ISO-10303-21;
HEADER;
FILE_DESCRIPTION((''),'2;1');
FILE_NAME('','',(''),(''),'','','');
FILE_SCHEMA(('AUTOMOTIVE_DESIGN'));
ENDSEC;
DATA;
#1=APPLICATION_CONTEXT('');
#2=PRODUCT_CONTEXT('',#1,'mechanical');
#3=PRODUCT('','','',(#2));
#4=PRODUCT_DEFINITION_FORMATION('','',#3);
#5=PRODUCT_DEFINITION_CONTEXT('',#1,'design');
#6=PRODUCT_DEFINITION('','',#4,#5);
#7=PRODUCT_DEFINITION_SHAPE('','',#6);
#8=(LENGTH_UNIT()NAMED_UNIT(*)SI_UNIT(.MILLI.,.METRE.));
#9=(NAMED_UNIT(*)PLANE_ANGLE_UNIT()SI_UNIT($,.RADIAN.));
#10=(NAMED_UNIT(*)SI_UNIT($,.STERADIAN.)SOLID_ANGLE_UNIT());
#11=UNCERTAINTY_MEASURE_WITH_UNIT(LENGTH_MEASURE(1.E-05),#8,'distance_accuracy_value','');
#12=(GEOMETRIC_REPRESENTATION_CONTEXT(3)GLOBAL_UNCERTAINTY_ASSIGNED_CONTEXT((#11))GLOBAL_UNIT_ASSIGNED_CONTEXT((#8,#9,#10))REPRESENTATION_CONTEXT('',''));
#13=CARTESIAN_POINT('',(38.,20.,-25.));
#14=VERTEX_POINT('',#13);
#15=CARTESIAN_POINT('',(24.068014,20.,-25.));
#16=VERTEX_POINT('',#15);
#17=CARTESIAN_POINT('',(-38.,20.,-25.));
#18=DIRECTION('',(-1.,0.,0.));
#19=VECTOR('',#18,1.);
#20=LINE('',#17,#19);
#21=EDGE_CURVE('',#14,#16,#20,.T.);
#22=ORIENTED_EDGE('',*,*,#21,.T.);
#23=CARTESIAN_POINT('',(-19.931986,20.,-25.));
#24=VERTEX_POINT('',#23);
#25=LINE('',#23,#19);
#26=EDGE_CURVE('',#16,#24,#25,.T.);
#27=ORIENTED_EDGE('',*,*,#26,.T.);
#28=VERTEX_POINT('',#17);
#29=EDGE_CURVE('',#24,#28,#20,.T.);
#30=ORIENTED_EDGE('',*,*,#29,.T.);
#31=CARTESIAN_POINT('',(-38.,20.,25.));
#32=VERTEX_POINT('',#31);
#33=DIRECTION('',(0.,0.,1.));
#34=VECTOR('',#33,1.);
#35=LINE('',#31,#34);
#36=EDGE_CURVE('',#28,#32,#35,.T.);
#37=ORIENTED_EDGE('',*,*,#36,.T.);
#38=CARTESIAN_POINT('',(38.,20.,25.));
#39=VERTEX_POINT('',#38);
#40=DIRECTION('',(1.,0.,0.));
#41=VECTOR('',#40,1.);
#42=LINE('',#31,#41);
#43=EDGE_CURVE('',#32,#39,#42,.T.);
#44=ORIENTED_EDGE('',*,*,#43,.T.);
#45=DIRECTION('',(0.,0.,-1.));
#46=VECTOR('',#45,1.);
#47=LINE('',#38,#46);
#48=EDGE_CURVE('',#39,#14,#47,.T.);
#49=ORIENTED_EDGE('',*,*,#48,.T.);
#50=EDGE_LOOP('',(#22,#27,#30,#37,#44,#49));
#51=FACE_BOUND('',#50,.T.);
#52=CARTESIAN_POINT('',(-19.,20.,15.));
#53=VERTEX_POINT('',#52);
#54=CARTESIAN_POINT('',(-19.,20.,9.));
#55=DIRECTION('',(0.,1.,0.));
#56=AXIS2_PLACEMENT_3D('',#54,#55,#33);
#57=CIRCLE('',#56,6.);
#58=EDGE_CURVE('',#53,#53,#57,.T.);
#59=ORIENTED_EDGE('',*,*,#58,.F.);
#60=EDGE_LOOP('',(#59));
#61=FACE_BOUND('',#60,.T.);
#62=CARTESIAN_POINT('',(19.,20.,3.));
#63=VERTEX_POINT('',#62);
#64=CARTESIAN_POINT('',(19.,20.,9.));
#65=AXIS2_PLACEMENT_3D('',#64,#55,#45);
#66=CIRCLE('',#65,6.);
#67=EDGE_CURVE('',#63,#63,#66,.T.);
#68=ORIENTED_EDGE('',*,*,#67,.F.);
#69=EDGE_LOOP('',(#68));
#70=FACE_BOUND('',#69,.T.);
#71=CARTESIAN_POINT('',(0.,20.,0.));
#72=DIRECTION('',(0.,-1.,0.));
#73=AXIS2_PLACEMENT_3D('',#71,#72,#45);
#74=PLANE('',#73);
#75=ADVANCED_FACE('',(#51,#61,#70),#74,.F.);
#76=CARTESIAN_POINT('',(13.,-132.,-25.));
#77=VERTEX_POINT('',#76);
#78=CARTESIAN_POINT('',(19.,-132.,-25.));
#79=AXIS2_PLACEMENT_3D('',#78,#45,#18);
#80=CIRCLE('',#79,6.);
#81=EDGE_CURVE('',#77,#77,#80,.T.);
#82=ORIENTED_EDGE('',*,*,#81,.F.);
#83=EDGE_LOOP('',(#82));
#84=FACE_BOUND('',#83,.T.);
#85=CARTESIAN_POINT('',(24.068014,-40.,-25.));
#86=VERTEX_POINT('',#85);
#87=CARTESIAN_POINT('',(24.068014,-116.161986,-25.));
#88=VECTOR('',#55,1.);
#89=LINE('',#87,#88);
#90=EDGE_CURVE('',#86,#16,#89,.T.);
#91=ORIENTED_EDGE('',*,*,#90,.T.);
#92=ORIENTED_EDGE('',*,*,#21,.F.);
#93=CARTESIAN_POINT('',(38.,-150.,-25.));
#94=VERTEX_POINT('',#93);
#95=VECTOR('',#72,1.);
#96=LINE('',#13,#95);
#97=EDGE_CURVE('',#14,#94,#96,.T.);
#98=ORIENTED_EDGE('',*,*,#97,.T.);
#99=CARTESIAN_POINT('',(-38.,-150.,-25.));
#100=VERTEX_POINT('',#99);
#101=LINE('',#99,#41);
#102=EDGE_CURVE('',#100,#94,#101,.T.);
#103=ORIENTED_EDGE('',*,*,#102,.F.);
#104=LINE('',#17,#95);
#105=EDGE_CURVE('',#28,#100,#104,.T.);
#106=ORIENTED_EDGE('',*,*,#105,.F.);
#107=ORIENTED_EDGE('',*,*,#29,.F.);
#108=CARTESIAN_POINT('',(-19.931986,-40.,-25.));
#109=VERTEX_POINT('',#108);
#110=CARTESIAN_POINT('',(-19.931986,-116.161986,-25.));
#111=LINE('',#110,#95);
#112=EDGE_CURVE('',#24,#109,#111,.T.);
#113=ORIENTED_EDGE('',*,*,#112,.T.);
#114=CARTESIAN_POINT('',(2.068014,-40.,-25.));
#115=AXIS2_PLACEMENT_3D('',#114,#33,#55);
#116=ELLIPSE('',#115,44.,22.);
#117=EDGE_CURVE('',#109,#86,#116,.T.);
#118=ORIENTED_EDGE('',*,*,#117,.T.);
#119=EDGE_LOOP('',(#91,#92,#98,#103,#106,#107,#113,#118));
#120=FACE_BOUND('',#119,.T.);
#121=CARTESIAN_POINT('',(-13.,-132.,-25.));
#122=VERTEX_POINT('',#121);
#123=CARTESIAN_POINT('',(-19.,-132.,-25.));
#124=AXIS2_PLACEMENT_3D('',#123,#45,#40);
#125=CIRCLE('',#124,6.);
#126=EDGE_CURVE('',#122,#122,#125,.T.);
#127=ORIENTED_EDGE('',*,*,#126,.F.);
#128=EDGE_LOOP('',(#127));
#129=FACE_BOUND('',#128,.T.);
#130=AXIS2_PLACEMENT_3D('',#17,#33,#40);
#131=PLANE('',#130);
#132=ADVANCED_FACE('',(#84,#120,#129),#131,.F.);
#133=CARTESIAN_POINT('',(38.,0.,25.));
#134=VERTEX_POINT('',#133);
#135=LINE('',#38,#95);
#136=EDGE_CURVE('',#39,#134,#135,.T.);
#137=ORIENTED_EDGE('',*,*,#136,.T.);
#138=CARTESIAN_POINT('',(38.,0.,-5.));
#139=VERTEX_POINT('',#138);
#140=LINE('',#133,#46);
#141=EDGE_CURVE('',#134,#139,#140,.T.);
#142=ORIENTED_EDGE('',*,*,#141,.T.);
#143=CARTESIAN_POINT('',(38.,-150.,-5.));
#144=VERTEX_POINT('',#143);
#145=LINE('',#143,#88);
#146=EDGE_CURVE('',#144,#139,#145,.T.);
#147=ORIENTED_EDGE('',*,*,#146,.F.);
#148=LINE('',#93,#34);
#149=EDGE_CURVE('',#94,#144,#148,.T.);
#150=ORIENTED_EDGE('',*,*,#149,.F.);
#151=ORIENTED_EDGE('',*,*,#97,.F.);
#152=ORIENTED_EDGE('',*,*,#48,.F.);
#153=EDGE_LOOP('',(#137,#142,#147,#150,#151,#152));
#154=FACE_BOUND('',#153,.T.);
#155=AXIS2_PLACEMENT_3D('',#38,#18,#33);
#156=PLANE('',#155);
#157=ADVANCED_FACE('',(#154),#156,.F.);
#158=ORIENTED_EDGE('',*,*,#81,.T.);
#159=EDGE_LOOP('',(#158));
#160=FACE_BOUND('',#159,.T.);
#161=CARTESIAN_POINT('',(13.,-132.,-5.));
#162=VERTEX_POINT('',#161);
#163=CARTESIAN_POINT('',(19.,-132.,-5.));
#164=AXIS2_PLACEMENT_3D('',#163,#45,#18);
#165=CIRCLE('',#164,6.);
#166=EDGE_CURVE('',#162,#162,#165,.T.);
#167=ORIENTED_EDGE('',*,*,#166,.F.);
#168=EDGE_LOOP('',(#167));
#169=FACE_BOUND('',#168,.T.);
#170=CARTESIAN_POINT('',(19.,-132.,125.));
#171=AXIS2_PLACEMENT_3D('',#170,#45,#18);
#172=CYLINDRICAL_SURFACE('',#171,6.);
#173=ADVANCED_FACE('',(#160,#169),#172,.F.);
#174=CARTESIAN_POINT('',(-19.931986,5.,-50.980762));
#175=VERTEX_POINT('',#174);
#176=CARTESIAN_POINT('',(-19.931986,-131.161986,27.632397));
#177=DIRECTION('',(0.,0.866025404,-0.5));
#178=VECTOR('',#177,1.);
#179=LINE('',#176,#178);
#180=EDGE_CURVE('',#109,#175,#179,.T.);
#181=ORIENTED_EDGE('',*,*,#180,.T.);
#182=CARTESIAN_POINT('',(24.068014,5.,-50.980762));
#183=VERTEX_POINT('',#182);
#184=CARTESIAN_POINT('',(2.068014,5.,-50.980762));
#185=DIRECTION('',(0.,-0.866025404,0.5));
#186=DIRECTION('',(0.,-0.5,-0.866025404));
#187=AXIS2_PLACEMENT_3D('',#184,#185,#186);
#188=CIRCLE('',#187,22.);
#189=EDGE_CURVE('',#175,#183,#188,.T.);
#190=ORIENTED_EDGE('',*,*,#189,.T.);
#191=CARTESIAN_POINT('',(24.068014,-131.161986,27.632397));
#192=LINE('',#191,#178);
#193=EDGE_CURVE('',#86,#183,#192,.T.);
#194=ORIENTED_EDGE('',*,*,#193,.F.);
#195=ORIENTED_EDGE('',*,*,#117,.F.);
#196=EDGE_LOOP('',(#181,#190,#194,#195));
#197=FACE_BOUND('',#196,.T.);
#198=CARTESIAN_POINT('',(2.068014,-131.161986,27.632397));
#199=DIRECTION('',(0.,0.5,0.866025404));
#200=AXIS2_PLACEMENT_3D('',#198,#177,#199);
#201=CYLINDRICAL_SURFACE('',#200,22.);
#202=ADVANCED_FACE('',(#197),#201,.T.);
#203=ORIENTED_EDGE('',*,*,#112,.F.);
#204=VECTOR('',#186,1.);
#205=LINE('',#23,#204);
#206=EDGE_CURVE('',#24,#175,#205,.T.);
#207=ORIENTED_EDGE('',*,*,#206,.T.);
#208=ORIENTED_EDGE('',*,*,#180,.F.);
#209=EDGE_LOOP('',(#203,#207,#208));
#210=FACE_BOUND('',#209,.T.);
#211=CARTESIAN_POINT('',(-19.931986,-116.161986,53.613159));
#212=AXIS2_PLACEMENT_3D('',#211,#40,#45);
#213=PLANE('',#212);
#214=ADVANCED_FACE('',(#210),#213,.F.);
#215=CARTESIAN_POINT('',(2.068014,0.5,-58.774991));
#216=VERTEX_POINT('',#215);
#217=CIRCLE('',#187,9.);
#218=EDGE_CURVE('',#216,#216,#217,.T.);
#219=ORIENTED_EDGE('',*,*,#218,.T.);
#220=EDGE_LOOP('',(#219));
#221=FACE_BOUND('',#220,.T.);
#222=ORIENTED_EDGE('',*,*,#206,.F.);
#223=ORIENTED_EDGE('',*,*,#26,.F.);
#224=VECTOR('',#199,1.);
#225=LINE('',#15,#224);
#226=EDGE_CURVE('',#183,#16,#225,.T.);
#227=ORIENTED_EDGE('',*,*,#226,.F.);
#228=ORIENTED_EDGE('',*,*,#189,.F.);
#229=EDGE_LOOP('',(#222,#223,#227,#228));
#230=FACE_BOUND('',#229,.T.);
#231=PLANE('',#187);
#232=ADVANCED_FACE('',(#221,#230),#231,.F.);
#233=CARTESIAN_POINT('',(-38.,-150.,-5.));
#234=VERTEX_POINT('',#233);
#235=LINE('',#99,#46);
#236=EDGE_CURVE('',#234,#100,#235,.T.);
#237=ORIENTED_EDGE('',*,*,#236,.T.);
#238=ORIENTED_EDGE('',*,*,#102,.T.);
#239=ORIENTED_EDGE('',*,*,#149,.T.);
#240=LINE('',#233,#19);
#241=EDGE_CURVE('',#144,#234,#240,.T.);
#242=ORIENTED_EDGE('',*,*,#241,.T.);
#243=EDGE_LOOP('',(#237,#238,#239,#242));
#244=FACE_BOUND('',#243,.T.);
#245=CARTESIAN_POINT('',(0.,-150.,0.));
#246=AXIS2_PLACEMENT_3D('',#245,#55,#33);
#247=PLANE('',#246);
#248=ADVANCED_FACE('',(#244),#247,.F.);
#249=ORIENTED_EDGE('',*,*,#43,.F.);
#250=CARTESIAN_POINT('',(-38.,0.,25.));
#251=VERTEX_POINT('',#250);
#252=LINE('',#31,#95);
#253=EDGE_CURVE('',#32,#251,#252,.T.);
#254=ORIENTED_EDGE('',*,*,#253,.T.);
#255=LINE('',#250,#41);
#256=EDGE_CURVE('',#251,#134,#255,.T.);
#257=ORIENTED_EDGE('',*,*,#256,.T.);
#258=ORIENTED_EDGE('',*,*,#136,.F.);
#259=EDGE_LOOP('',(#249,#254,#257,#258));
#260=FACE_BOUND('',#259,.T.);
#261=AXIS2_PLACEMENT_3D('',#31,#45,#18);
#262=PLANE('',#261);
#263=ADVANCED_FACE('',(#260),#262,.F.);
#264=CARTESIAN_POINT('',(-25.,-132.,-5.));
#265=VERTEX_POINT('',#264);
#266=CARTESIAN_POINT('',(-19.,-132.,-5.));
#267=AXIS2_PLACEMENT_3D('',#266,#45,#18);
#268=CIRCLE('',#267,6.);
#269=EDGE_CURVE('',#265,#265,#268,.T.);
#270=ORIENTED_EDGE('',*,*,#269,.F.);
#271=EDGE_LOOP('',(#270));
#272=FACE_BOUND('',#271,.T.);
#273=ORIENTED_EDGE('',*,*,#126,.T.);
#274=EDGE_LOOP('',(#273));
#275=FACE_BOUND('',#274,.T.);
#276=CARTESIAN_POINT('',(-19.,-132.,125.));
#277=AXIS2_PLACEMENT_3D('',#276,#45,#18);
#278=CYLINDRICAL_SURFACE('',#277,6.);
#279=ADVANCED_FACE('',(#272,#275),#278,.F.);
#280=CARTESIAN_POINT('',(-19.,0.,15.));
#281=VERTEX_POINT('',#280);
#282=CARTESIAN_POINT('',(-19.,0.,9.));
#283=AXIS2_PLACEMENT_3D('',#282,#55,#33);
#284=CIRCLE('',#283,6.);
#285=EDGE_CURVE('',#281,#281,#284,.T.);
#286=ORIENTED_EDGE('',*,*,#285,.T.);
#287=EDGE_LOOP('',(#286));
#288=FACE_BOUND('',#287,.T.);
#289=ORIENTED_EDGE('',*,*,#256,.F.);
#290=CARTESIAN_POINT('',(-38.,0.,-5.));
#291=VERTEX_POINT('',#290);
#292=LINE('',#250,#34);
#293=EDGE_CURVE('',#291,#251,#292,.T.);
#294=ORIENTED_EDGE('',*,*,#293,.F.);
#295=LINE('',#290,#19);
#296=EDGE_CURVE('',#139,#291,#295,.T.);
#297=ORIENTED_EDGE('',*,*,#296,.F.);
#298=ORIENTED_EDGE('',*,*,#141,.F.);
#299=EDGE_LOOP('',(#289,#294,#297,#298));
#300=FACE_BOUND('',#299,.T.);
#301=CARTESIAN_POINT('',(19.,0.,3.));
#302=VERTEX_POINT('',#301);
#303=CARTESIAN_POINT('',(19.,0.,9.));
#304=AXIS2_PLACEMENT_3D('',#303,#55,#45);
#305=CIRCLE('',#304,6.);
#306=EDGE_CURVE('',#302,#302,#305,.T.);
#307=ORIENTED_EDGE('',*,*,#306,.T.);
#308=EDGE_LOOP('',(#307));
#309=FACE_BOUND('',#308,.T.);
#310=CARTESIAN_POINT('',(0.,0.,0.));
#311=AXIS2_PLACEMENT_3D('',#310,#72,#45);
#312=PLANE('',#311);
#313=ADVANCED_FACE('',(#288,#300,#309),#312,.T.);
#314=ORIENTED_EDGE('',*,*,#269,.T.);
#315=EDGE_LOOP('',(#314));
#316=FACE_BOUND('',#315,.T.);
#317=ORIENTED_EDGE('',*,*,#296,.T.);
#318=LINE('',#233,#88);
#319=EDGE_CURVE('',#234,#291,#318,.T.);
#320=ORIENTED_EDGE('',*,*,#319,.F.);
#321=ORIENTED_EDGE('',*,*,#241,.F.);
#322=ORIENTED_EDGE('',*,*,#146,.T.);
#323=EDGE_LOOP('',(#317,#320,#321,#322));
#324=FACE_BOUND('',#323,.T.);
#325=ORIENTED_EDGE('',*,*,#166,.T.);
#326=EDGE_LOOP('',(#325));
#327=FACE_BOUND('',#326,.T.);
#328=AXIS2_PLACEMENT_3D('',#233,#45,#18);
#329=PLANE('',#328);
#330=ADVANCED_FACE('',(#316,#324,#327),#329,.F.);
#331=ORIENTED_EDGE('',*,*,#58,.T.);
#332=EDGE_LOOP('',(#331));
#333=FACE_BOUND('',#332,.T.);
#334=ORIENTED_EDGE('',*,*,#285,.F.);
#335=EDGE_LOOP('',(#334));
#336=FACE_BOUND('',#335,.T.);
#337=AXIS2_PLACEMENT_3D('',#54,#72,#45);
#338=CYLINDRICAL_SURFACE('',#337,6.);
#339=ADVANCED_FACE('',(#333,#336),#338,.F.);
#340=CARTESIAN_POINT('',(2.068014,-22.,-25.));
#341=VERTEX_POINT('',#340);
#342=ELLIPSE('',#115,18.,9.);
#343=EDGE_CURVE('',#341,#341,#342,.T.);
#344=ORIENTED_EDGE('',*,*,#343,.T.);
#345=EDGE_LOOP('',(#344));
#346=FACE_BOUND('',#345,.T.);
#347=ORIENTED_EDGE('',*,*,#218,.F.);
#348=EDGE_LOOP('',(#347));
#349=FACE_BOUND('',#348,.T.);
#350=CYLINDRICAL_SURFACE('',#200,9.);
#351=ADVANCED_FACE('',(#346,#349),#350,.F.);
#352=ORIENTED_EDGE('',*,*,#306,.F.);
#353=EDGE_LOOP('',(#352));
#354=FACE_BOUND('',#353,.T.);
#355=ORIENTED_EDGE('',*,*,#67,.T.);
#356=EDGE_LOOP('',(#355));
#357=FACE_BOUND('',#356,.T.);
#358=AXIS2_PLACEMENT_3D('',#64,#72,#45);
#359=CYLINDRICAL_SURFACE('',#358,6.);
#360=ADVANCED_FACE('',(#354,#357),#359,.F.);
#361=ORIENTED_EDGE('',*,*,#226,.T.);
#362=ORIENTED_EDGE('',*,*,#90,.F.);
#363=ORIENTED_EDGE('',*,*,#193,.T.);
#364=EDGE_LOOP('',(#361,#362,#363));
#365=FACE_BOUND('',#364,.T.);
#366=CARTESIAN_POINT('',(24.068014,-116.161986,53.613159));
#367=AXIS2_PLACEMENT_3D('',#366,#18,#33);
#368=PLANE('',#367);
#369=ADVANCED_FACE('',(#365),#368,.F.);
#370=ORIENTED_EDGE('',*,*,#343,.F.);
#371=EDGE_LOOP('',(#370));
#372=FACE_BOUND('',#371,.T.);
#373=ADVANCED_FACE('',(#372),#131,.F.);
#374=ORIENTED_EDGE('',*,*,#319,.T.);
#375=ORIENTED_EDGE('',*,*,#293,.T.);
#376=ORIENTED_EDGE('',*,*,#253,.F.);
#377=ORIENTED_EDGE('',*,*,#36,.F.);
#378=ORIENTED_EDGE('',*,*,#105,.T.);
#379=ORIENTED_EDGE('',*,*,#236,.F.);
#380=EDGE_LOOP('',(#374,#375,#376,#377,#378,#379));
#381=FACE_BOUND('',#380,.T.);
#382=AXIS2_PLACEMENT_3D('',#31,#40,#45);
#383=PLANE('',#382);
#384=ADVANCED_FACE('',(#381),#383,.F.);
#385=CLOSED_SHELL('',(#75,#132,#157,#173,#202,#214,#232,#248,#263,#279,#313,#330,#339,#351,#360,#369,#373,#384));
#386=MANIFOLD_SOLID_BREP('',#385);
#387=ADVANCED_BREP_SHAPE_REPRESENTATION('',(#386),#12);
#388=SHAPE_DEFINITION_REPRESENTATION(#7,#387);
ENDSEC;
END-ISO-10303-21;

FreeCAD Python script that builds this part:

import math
import FreeCAD as App
import Part
import Sketcher


def add_polygon(sketch, points):
    """Adds a closed chain of lines whose ends are joined by coincident constraints."""
    first, n = sketch.GeometryCount, len(points)
    for a, b in zip(points, points[1:] + points[:1]):
        sketch.addGeometry(Part.LineSegment(App.Vector(*a, 0), App.Vector(*b, 0)), False)
    for i in range(n):
        sketch.addConstraint(Sketcher.Constraint("Coincident", first + i, 2, first + (i + 1) % n, 1))

doc = App.newDocument("Part")
body = doc.addObject("PartDesign::Body", "Body")

sketch1 = body.newObject("Sketcher::SketchObject", "Sketch")
sketch1.AttachmentSupport = (doc.getObject("XZ_Plane"), [""])
sketch1.MapMode = "FlatFace"
add_polygon(sketch1, [(-38, -25), (-38, 25), (38, 25), (38, -25)])
sketch1.addGeometry(Part.Circle(App.Vector(-19, 9, 0), App.Vector(0, 0, 1), 6), False)
sketch1.addGeometry(Part.Circle(App.Vector(19, 9, 0), App.Vector(0, 0, 1), 6), False)
sketch1.addConstraint([
    Sketcher.Constraint("Vertical", 0),
    Sketcher.Constraint("Horizontal", 1),
    Sketcher.Constraint("Vertical", 2),
    Sketcher.Constraint("Horizontal", 3),
    Sketcher.Constraint("Equal", 4, 5),
    Sketcher.Constraint("Symmetric", 0, 2, 2, 2, -1, 1),
    Sketcher.Constraint("Symmetric", 4, 3, 5, 3, -2),
    Sketcher.Constraint("Diameter", 4, 12.0),
    Sketcher.Constraint("DistanceX", 1, 1, 1, 2, 76.0),
    Sketcher.Constraint("DistanceY", 0, 1, 0, 2, 50.0),
    Sketcher.Constraint("DistanceX", 4, 3, -1, 1, 19.0),
    Sketcher.Constraint("DistanceY", -1, 1, 4, 3, 9.0),
])
pad1 = body.newObject("PartDesign::Pad", "Pad")
pad1.Profile = sketch1
pad1.Length = 20
pad1.Reversed = True

sketch2 = body.newObject("Sketcher::SketchObject", "Sketch001")
sketch2.AttachmentSupport = (doc.getObject("XZ_Plane"), [""])
sketch2.MapMode = "FlatFace"
add_polygon(sketch2, [(-38, -5), (-38, -25), (38, -25), (38, -5)])
sketch2.addConstraint([
    Sketcher.Constraint("Vertical", 0),
    Sketcher.Constraint("Horizontal", 1),
    Sketcher.Constraint("Vertical", 2),
    Sketcher.Constraint("Horizontal", 3),
    Sketcher.Constraint("DistanceX", 1, 1, 1, 2, 76.0),
    Sketcher.Constraint("DistanceY", 0, 2, 0, 1, 20.0),
    Sketcher.Constraint("DistanceX", 0, 2, -1, 1, 38.0),
    Sketcher.Constraint("DistanceY", 0, 2, -1, 1, 25.0),
])
pad2 = body.newObject("PartDesign::Pad", "Pad001")
pad2.Profile = sketch2
pad2.Length = 150

sketch3 = body.newObject("Sketcher::SketchObject", "Sketch002")
sketch3.AttachmentSupport = (doc.getObject("XY_Plane"), [""])
sketch3.MapMode = "FlatFace"
sketch3.AttachmentOffset = App.Placement(App.Vector(0, 0, -25), App.Rotation())
sketch3.addGeometry([
    Part.Circle(App.Vector(19, -132, 0), App.Vector(0, 0, 1), 6),
    Part.Circle(App.Vector(-19, -132, 0), App.Vector(0, 0, 1), 6),
], False)
sketch3.addConstraint([
    Sketcher.Constraint("Equal", 0, 1),
    Sketcher.Constraint("Symmetric", 0, 3, 1, 3, -2),
    Sketcher.Constraint("Diameter", 0, 12.0),
    Sketcher.Constraint("DistanceX", -1, 1, 0, 3, 19.0),
    Sketcher.Constraint("DistanceY", 0, 3, -1, 1, 132.0),
])
pocket1 = body.newObject("PartDesign::Pocket", "Pocket")
pocket1.Profile = sketch3
pocket1.Length = 150
pocket1.Reversed = True

sketch4 = body.newObject("Sketcher::SketchObject", "Sketch003")
sketch4.Placement = App.Placement(App.Vector(0, 25.825318, -14.910254), App.Rotation(App.Vector(1, 0, 0), App.Vector(0, 0.5, 0.866025404), App.Vector(0, -0.866025404, 0.5), "ZXY"))
sketch4.addGeometry([
    Part.LineSegment(App.Vector(24, -12, 0), App.Vector(-20, -12, 0)),
    Part.LineSegment(App.Vector(-20, -12, 0), App.Vector(-20, -42, 0)),
    Part.ArcOfCircle(Part.Circle(App.Vector(2, -42, 0), App.Vector(0, 0, 1), 22), math.radians(180), math.radians(360)),
    Part.LineSegment(App.Vector(24, -42, 0), App.Vector(24, -12, 0)),
    Part.Circle(App.Vector(2, -42, 0), App.Vector(0, 0, 1), 9),
], False)
sketch4.addConstraint([
    Sketcher.Constraint("Coincident", 0, 2, 1, 1),
    Sketcher.Constraint("Tangent", 1, 2, 2, 1),
    Sketcher.Constraint("Tangent", 2, 2, 3, 1),
    Sketcher.Constraint("Coincident", 3, 2, 0, 1),
    Sketcher.Constraint("Horizontal", 0),
    Sketcher.Constraint("Vertical", 1),
    Sketcher.Constraint("Vertical", 3),
    Sketcher.Constraint("Coincident", 4, 3, 2, 3),
    Sketcher.Constraint("Diameter", 4, 18.0),
    Sketcher.Constraint("Radius", 2, 22.0),
    Sketcher.Constraint("DistanceY", 1, 2, 1, 1, 30.0),
    Sketcher.Constraint("DistanceX", -1, 1, 2, 3, 2.068014),
    Sketcher.Constraint("DistanceY", 2, 3, -1, 1, 41.650635),
])
pad3 = body.newObject("PartDesign::Pad", "Pad002")
pad3.Profile = sketch4
pad3.Type = "UpToFirst"

doc.recompute()
